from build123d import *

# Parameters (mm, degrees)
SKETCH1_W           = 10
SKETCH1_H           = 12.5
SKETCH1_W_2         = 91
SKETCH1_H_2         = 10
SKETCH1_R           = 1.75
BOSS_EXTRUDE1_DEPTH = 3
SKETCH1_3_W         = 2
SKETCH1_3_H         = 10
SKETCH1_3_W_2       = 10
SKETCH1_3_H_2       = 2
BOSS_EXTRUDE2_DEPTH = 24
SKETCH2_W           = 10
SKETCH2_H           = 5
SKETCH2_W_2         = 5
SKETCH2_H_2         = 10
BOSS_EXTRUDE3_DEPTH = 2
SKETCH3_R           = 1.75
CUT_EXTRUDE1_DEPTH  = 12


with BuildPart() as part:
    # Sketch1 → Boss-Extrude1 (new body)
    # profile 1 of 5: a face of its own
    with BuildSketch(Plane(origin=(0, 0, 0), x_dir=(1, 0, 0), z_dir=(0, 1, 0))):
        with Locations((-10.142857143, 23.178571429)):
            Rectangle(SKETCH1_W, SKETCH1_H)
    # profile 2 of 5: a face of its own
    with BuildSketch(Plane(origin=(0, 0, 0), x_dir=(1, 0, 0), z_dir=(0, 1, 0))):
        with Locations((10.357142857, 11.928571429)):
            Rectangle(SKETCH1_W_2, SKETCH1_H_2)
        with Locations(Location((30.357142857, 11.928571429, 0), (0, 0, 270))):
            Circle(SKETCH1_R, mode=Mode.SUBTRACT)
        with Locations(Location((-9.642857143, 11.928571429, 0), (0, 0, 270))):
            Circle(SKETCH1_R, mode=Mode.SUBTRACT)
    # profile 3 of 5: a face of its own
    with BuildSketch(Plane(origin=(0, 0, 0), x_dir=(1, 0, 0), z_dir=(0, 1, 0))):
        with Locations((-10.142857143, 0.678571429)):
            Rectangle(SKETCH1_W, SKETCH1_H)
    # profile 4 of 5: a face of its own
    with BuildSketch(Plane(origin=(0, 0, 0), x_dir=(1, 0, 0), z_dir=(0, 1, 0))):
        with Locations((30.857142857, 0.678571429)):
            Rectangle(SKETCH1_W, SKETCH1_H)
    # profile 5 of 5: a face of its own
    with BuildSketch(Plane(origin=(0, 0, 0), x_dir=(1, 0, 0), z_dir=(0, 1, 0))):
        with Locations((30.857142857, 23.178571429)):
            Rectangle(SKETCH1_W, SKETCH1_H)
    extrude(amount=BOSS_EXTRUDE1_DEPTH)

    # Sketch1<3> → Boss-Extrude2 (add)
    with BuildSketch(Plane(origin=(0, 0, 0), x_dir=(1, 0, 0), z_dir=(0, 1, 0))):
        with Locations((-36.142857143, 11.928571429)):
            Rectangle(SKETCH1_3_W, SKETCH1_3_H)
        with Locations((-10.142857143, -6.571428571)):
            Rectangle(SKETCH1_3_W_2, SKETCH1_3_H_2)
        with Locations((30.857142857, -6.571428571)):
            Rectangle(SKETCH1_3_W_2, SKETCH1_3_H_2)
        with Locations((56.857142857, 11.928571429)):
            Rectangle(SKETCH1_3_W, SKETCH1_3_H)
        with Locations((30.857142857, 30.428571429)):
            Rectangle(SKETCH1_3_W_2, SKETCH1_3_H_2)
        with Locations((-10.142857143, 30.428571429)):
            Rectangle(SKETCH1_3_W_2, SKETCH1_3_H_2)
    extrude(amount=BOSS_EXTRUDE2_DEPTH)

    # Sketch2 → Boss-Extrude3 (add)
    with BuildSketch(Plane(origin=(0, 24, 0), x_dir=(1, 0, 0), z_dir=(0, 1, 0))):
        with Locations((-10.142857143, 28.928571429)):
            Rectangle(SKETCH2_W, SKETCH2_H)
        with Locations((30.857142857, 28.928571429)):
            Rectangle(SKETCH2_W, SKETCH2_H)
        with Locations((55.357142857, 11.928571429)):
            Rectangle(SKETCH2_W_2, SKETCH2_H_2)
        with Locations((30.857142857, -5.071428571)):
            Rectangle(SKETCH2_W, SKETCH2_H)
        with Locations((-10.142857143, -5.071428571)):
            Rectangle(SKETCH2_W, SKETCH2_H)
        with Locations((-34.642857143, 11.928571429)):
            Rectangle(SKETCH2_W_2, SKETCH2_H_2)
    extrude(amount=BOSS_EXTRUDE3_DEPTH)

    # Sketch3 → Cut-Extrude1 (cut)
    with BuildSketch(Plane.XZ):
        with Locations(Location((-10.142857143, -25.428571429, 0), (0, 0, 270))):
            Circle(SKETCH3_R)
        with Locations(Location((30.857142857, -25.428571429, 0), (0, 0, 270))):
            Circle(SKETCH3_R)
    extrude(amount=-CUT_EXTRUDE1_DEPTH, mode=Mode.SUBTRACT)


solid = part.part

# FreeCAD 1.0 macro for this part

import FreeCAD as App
import Part
import Sketcher
Q = App.Units.Quantity

doc = App.newDocument("Part")
body = doc.addObject("PartDesign::Body", "Body")

# Sketch on XZ plane
sketch1 = doc.addObject("Sketcher::SketchObject", "Sketch")
body.addObject(sketch1)
sketch1.AttachmentSupport = (doc.XZ_Plane, [""])
sketch1.MapMode = "FlatFace"
sketch1.addGeometry([
    Part.LineSegment(App.Vector(-15.1, -29.4, 0), App.Vector(-15.1, -16.9, 0)),  # 0
    Part.LineSegment(App.Vector(-15.1, -16.9, 0), App.Vector(-35.1, -16.9, 0)),  # 1
    Part.LineSegment(App.Vector(-35.1, -16.9, 0), App.Vector(-35.1, -6.9, 0)),  # 2
    Part.LineSegment(App.Vector(-35.1, -6.9, 0), App.Vector(-15.1, -6.9, 0)),  # 3
    Part.LineSegment(App.Vector(-15.1, -6.9, 0), App.Vector(-15.1, 5.6, 0)),  # 4
    Part.LineSegment(App.Vector(-15.1, 5.6, 0), App.Vector(-5.1, 5.6, 0)),  # 5
    Part.LineSegment(App.Vector(-5.1, 5.6, 0), App.Vector(-5.1, -6.9, 0)),  # 6
    Part.LineSegment(App.Vector(-5.1, -6.9, 0), App.Vector(25.9, -6.9, 0)),  # 7
    Part.LineSegment(App.Vector(25.9, -6.9, 0), App.Vector(25.9, 5.6, 0)),  # 8
    Part.LineSegment(App.Vector(25.9, 5.6, 0), App.Vector(35.9, 5.6, 0)),  # 9
    Part.LineSegment(App.Vector(35.9, 5.6, 0), App.Vector(35.9, -6.9, 0)),  # 10
    Part.LineSegment(App.Vector(35.9, -6.9, 0), App.Vector(55.9, -6.9, 0)),  # 11
    Part.LineSegment(App.Vector(55.9, -6.9, 0), App.Vector(55.9, -16.9, 0)),  # 12
    Part.LineSegment(App.Vector(55.9, -16.9, 0), App.Vector(35.9, -16.9, 0)),  # 13
    Part.LineSegment(App.Vector(35.9, -16.9, 0), App.Vector(35.9, -29.4, 0)),  # 14
    Part.LineSegment(App.Vector(35.9, -29.4, 0), App.Vector(25.9, -29.4, 0)),  # 15
    Part.LineSegment(App.Vector(25.9, -29.4, 0), App.Vector(25.9, -16.9, 0)),  # 16
    Part.LineSegment(App.Vector(25.9, -16.9, 0), App.Vector(-5.1, -16.9, 0)),  # 17
    Part.LineSegment(App.Vector(-5.1, -16.9, 0), App.Vector(-5.1, -29.4, 0)),  # 18
    Part.LineSegment(App.Vector(-5.1, -29.4, 0), App.Vector(-15.1, -29.4, 0)),  # 19
    Part.Circle(App.Vector(30.4, -11.9, 0), App.Vector(0, 0, 1), 1.8),  # 20
    Part.Circle(App.Vector(-9.6, -11.9, 0), App.Vector(0, 0, 1), 1.8),  # 21
], False)
sketch1.addConstraint([
    Sketcher.Constraint("Coincident", 0, 2, 1, 1),
    Sketcher.Constraint("Coincident", 1, 2, 2, 1),
    Sketcher.Constraint("Coincident", 2, 2, 3, 1),
    Sketcher.Constraint("Coincident", 3, 2, 4, 1),
    Sketcher.Constraint("Coincident", 4, 2, 5, 1),
    Sketcher.Constraint("Coincident", 5, 2, 6, 1),
    Sketcher.Constraint("Coincident", 6, 2, 7, 1),
    Sketcher.Constraint("Coincident", 7, 2, 8, 1),
    Sketcher.Constraint("Coincident", 8, 2, 9, 1),
    Sketcher.Constraint("Coincident", 9, 2, 10, 1),
    Sketcher.Constraint("Coincident", 10, 2, 11, 1),
    Sketcher.Constraint("Coincident", 11, 2, 12, 1),
    Sketcher.Constraint("Coincident", 12, 2, 13, 1),
    Sketcher.Constraint("Coincident", 13, 2, 14, 1),
    Sketcher.Constraint("Coincident", 14, 2, 15, 1),
    Sketcher.Constraint("Coincident", 15, 2, 16, 1),
    Sketcher.Constraint("Coincident", 16, 2, 17, 1),
    Sketcher.Constraint("Coincident", 17, 2, 18, 1),
    Sketcher.Constraint("Coincident", 18, 2, 19, 1),
    Sketcher.Constraint("Coincident", 19, 2, 0, 1),
    Sketcher.Constraint("Vertical", 0),
    Sketcher.Constraint("Horizontal", 1),
    Sketcher.Constraint("Vertical", 2),
    Sketcher.Constraint("Horizontal", 3),
    Sketcher.Constraint("Vertical", 4),
    Sketcher.Constraint("Horizontal", 5),
    Sketcher.Constraint("Vertical", 6),
    Sketcher.Constraint("Horizontal", 7),
    Sketcher.Constraint("Vertical", 8),
    Sketcher.Constraint("Horizontal", 9),
    Sketcher.Constraint("Vertical", 10),
    Sketcher.Constraint("Horizontal", 11),
    Sketcher.Constraint("Vertical", 12),
    Sketcher.Constraint("Horizontal", 13),
    Sketcher.Constraint("Vertical", 14),
    Sketcher.Constraint("Horizontal", 15),
    Sketcher.Constraint("Vertical", 16),
    Sketcher.Constraint("Horizontal", 17),
    Sketcher.Constraint("Vertical", 18),
    Sketcher.Constraint("Horizontal", 19),
    Sketcher.Constraint("Equal", 20, 21),
    Sketcher.Constraint("Horizontal", 20, 3, 21, 3),
    Sketcher.Constraint("Horizontal", 3, 2, 6, 2),
    Sketcher.Constraint("Horizontal", 5, 2, 8, 2),
    Sketcher.Constraint("Horizontal", 7, 2, 10, 2),
    Sketcher.Constraint("Horizontal", 1, 2, 12, 2),
    Sketcher.Constraint("Horizontal", 13, 2, 16, 2),
    Sketcher.Constraint("Horizontal", 15, 2, 18, 2),
    Sketcher.Constraint("Vertical", 0, 2, 3, 2),
    Sketcher.Constraint("Vertical", 10, 2, 13, 2),
    Sketcher.Constraint("Vertical", 8, 2, 15, 2),
    Sketcher.Constraint("Vertical", 6, 2, 17, 2),
    Sketcher.Constraint("Equal", 5, 9),
    Sketcher.Constraint("Equal", 3, 11),
    Sketcher.Constraint("Equal", 19, 2),
    Sketcher.Constraint("Equal", 0, 4),
    Sketcher.Constraint("Diameter", 20, Q("3.5 mm")),
    Sketcher.Constraint("DistanceX", 1, 2, 1, 1, Q("20 mm")),
    Sketcher.Constraint("DistanceX", 5, 1, 5, 2, Q("10 mm")),
    Sketcher.Constraint("DistanceX", 7, 1, 7, 2, Q("31 mm")),
    Sketcher.Constraint("DistanceY", 0, 1, 0, 2, Q("12.5 mm")),
    Sketcher.Constraint("DistanceX", 21, 3, 20, 3, Q("40 mm")),
    Sketcher.Constraint("DistanceY", 0, 2, 21, 3, Q("5 mm")),
    Sketcher.Constraint("DistanceX", 0, 2, 21, 3, Q("5.5 mm")),
    Sketcher.Constraint("DistanceY", 20, 3, -1, 1, Q("11.928571 mm")),
    Sketcher.Constraint("DistanceX", -1, 1, 20, 3, Q("30.357143 mm")),
])
pad1 = doc.addObject("PartDesign::Pad", "Pad")
body.addObject(pad1)
pad1.Profile = sketch1
pad1.Length = 3
pad1.Reversed = True

# Sketch on XZ plane
sketch2 = doc.addObject("Sketcher::SketchObject", "Sketch001")
body.addObject(sketch2)
sketch2.AttachmentSupport = (doc.XZ_Plane, [""])
sketch2.MapMode = "FlatFace"
sketch2.addGeometry([
    Part.LineSegment(App.Vector(-37.1, -16.9, 0), App.Vector(-37.1, -6.9, 0)),  # 0
    Part.LineSegment(App.Vector(-37.1, -6.9, 0), App.Vector(-35.1, -6.9, 0)),  # 1
    Part.LineSegment(App.Vector(-35.1, -6.9, 0), App.Vector(-35.1, -16.9, 0)),  # 2
    Part.LineSegment(App.Vector(-35.1, -16.9, 0), App.Vector(-37.1, -16.9, 0)),  # 3
    Part.LineSegment(App.Vector(-15.1, 5.6, 0), App.Vector(-15.1, 7.6, 0)),  # 4
    Part.LineSegment(App.Vector(-15.1, 7.6, 0), App.Vector(-5.1, 7.6, 0)),  # 5
    Part.LineSegment(App.Vector(-5.1, 7.6, 0), App.Vector(-5.1, 5.6, 0)),  # 6
    Part.LineSegment(App.Vector(-5.1, 5.6, 0), App.Vector(-15.1, 5.6, 0)),  # 7
    Part.LineSegment(App.Vector(25.9, 5.6, 0), App.Vector(25.9, 7.6, 0)),  # 8
    Part.LineSegment(App.Vector(25.9, 7.6, 0), App.Vector(35.9, 7.6, 0)),  # 9
    Part.LineSegment(App.Vector(35.9, 7.6, 0), App.Vector(35.9, 5.6, 0)),  # 10
    Part.LineSegment(App.Vector(35.9, 5.6, 0), App.Vector(25.9, 5.6, 0)),  # 11
    Part.LineSegment(App.Vector(55.9, -16.9, 0), App.Vector(55.9, -6.9, 0)),  # 12
    Part.LineSegment(App.Vector(55.9, -6.9, 0), App.Vector(57.9, -6.9, 0)),  # 13
    Part.LineSegment(App.Vector(57.9, -6.9, 0), App.Vector(57.9, -16.9, 0)),  # 14
    Part.LineSegment(App.Vector(57.9, -16.9, 0), App.Vector(55.9, -16.9, 0)),  # 15
    Part.LineSegment(App.Vector(25.9, -31.4, 0), App.Vector(25.9, -29.4, 0)),  # 16
    Part.LineSegment(App.Vector(25.9, -29.4, 0), App.Vector(35.9, -29.4, 0)),  # 17
    Part.LineSegment(App.Vector(35.9, -29.4, 0), App.Vector(35.9, -31.4, 0)),  # 18
    Part.LineSegment(App.Vector(35.9, -31.4, 0), App.Vector(25.9, -31.4, 0)),  # 19
    Part.LineSegment(App.Vector(-15.1, -31.4, 0), App.Vector(-15.1, -29.4, 0)),  # 20
    Part.LineSegment(App.Vector(-15.1, -29.4, 0), App.Vector(-5.1, -29.4, 0)),  # 21
    Part.LineSegment(App.Vector(-5.1, -29.4, 0), App.Vector(-5.1, -31.4, 0)),  # 22
    Part.LineSegment(App.Vector(-5.1, -31.4, 0), App.Vector(-15.1, -31.4, 0)),  # 23
], False)
sketch2.addConstraint([
    Sketcher.Constraint("Coincident", 0, 2, 1, 1),
    Sketcher.Constraint("Coincident", 1, 2, 2, 1),
    Sketcher.Constraint("Coincident", 2, 2, 3, 1),
    Sketcher.Constraint("Coincident", 3, 2, 0, 1),
    Sketcher.Constraint("Coincident", 4, 2, 5, 1),
    Sketcher.Constraint("Coincident", 5, 2, 6, 1),
    Sketcher.Constraint("Coincident", 6, 2, 7, 1),
    Sketcher.Constraint("Coincident", 7, 2, 4, 1),
    Sketcher.Constraint("Coincident", 8, 2, 9, 1),
    Sketcher.Constraint("Coincident", 9, 2, 10, 1),
    Sketcher.Constraint("Coincident", 10, 2, 11, 1),
    Sketcher.Constraint("Coincident", 11, 2, 8, 1),
    Sketcher.Constraint("Coincident", 12, 2, 13, 1),
    Sketcher.Constraint("Coincident", 13, 2, 14, 1),
    Sketcher.Constraint("Coincident", 14, 2, 15, 1),
    Sketcher.Constraint("Coincident", 15, 2, 12, 1),
    Sketcher.Constraint("Coincident", 16, 2, 17, 1),
    Sketcher.Constraint("Coincident", 17, 2, 18, 1),
    Sketcher.Constraint("Coincident", 18, 2, 19, 1),
    Sketcher.Constraint("Coincident", 19, 2, 16, 1),
    Sketcher.Constraint("Coincident", 20, 2, 21, 1),
    Sketcher.Constraint("Coincident", 21, 2, 22, 1),
    Sketcher.Constraint("Coincident", 22, 2, 23, 1),
    Sketcher.Constraint("Coincident", 23, 2, 20, 1),
    Sketcher.Constraint("Vertical", 0),
    Sketcher.Constraint("Horizontal", 1),
    Sketcher.Constraint("Vertical", 2),
    Sketcher.Constraint("Horizontal", 3),
    Sketcher.Constraint("Vertical", 4),
    Sketcher.Constraint("Horizontal", 5),
    Sketcher.Constraint("Vertical", 6),
    Sketcher.Constraint("Horizontal", 7),
    Sketcher.Constraint("Vertical", 8),
    Sketcher.Constraint("Horizontal", 9),
    Sketcher.Constraint("Vertical", 10),
    Sketcher.Constraint("Horizontal", 11),
    Sketcher.Constraint("Vertical", 12),
    Sketcher.Constraint("Horizontal", 13),
    Sketcher.Constraint("Vertical", 14),
    Sketcher.Constraint("Horizontal", 15),
    Sketcher.Constraint("Vertical", 16),
    Sketcher.Constraint("Horizontal", 17),
    Sketcher.Constraint("Vertical", 18),
    Sketcher.Constraint("Horizontal", 19),
    Sketcher.Constraint("Vertical", 20),
    Sketcher.Constraint("Horizontal", 21),
    Sketcher.Constraint("Vertical", 22),
    Sketcher.Constraint("Horizontal", 23),
    Sketcher.Constraint("Horizontal", 5, 2, 8, 2),
    Sketcher.Constraint("Horizontal", 7, 2, 10, 2),
    Sketcher.Constraint("Horizontal", 1, 2, 12, 2),
    Sketcher.Constraint("Horizontal", 3, 2, 14, 2),
    Sketcher.Constraint("Horizontal", 17, 2, 20, 2),
    Sketcher.Constraint("Horizontal", 19, 2, 22, 2),
    Sketcher.Constraint("Vertical", 11, 2, 16, 2),
    Sketcher.Constraint("Vertical", 10, 2, 17, 2),
    Sketcher.Constraint("Vertical", 7, 2, 20, 2),
    Sketcher.Constraint("Vertical", 6, 2, 21, 2),
    Sketcher.Constraint("Equal", 7, 9),
    Sketcher.Constraint("Equal", 3, 13),
    Sketcher.Constraint("Equal", 23, 0),
    Sketcher.Constraint("Equal", 15, 4),
    Sketcher.Constraint("Equal", 10, 16),
    Sketcher.Constraint("DistanceX", 1, 1, 1, 2, Q("2 mm")),
    Sketcher.Constraint("DistanceX", 5, 1, 5, 2, Q("10 mm")),
    Sketcher.Constraint("DistanceX", 1, 2, 4, 2, Q("20 mm")),
    Sketcher.Constraint("DistanceX", 5, 2, 8, 2, Q("31 mm")),
    Sketcher.Constraint("DistanceX", 10, 2, 12, 2, Q("20 mm")),
    Sketcher.Constraint("DistanceY", 16, 2, 11, 2, Q("35 mm")),
    Sketcher.Constraint("DistanceY", 1, 2, 4, 2, Q("14.5 mm")),
    Sketcher.Constraint("DistanceY", 0, 2, -1, 1, Q("6.928571 mm")),
    Sketcher.Constraint("DistanceX", 0, 2, -1, 1, Q("37.142857 mm")),
])
pad2 = doc.addObject("PartDesign::Pad", "Pad001")
body.addObject(pad2)
pad2.Profile = sketch2
pad2.Length = 24
pad2.Reversed = True

# Sketch on XZ plane
sketch3 = doc.addObject("Sketcher::SketchObject", "Sketch002")
body.addObject(sketch3)
sketch3.AttachmentSupport = (doc.XZ_Plane, [""])
sketch3.MapMode = "FlatFace"
sketch3.AttachmentOffset = App.Placement(App.Vector(0, 0, -24), App.Rotation())
sketch3.addGeometry([
    Part.LineSegment(App.Vector(-15, -31, 0), App.Vector(-15, -26, 0)),  # 0
    Part.LineSegment(App.Vector(-15, -26, 0), App.Vector(-5, -26, 0)),  # 1
    Part.LineSegment(App.Vector(-5, -26, 0), App.Vector(-5, -31, 0)),  # 2
    Part.LineSegment(App.Vector(-5, -31, 0), App.Vector(-15, -31, 0)),  # 3
    Part.LineSegment(App.Vector(26, -31, 0), App.Vector(26, -26, 0)),  # 4
    Part.LineSegment(App.Vector(26, -26, 0), App.Vector(36, -26, 0)),  # 5
    Part.LineSegment(App.Vector(36, -26, 0), App.Vector(36, -31, 0)),  # 6
    Part.LineSegment(App.Vector(36, -31, 0), App.Vector(26, -31, 0)),  # 7
    Part.LineSegment(App.Vector(53, -17, 0), App.Vector(53, -7, 0)),  # 8
    Part.LineSegment(App.Vector(53, -7, 0), App.Vector(58, -7, 0)),  # 9
    Part.LineSegment(App.Vector(58, -7, 0), App.Vector(58, -17, 0)),  # 10
    Part.LineSegment(App.Vector(58, -17, 0), App.Vector(53, -17, 0)),  # 11
    Part.LineSegment(App.Vector(26, 3, 0), App.Vector(26, 8, 0)),  # 12
    Part.LineSegment(App.Vector(26, 8, 0), App.Vector(36, 8, 0)),  # 13
    Part.LineSegment(App.Vector(36, 8, 0), App.Vector(36, 3, 0)),  # 14
    Part.LineSegment(App.Vector(36, 3, 0), App.Vector(26, 3, 0)),  # 15
    Part.LineSegment(App.Vector(-15, 3, 0), App.Vector(-15, 8, 0)),  # 16
    Part.LineSegment(App.Vector(-15, 8, 0), App.Vector(-5, 8, 0)),  # 17
    Part.LineSegment(App.Vector(-5, 8, 0), App.Vector(-5, 3, 0)),  # 18
    Part.LineSegment(App.Vector(-5, 3, 0), App.Vector(-15, 3, 0)),  # 19
    Part.LineSegment(App.Vector(-37, -17, 0), App.Vector(-37, -7, 0)),  # 20
    Part.LineSegment(App.Vector(-37, -7, 0), App.Vector(-32, -7, 0)),  # 21
    Part.LineSegment(App.Vector(-32, -7, 0), App.Vector(-32, -17, 0)),  # 22
    Part.LineSegment(App.Vector(-32, -17, 0), App.Vector(-37, -17, 0)),  # 23
], False)
sketch3.addConstraint([
    Sketcher.Constraint("Coincident", 0, 2, 1, 1),
    Sketcher.Constraint("Coincident", 1, 2, 2, 1),
    Sketcher.Constraint("Coincident", 2, 2, 3, 1),
    Sketcher.Constraint("Coincident", 3, 2, 0, 1),
    Sketcher.Constraint("Coincident", 4, 2, 5, 1),
    Sketcher.Constraint("Coincident", 5, 2, 6, 1),
    Sketcher.Constraint("Coincident", 6, 2, 7, 1),
    Sketcher.Constraint("Coincident", 7, 2, 4, 1),
    Sketcher.Constraint("Coincident", 8, 2, 9, 1),
    Sketcher.Constraint("Coincident", 9, 2, 10, 1),
    Sketcher.Constraint("Coincident", 10, 2, 11, 1),
    Sketcher.Constraint("Coincident", 11, 2, 8, 1),
    Sketcher.Constraint("Coincident", 12, 2, 13, 1),
    Sketcher.Constraint("Coincident", 13, 2, 14, 1),
    Sketcher.Constraint("Coincident", 14, 2, 15, 1),
    Sketcher.Constraint("Coincident", 15, 2, 12, 1),
    Sketcher.Constraint("Coincident", 16, 2, 17, 1),
    Sketcher.Constraint("Coincident", 17, 2, 18, 1),
    Sketcher.Constraint("Coincident", 18, 2, 19, 1),
    Sketcher.Constraint("Coincident", 19, 2, 16, 1),
    Sketcher.Constraint("Coincident", 20, 2, 21, 1),
    Sketcher.Constraint("Coincident", 21, 2, 22, 1),
    Sketcher.Constraint("Coincident", 22, 2, 23, 1),
    Sketcher.Constraint("Coincident", 23, 2, 20, 1),
    Sketcher.Constraint("Vertical", 0),
    Sketcher.Constraint("Horizontal", 1),
    Sketcher.Constraint("Vertical", 2),
    Sketcher.Constraint("Horizontal", 3),
    Sketcher.Constraint("Vertical", 4),
    Sketcher.Constraint("Horizontal", 5),
    Sketcher.Constraint("Vertical", 6),
    Sketcher.Constraint("Horizontal", 7),
    Sketcher.Constraint("Vertical", 8),
    Sketcher.Constraint("Horizontal", 9),
    Sketcher.Constraint("Vertical", 10),
    Sketcher.Constraint("Horizontal", 11),
    Sketcher.Constraint("Vertical", 12),
    Sketcher.Constraint("Horizontal", 13),
    Sketcher.Constraint("Vertical", 14),
    Sketcher.Constraint("Horizontal", 15),
    Sketcher.Constraint("Vertical", 16),
    Sketcher.Constraint("Horizontal", 17),
    Sketcher.Constraint("Vertical", 18),
    Sketcher.Constraint("Horizontal", 19),
    Sketcher.Constraint("Vertical", 20),
    Sketcher.Constraint("Horizontal", 21),
    Sketcher.Constraint("Vertical", 22),
    Sketcher.Constraint("Horizontal", 23),
    Sketcher.Constraint("Horizontal", 1, 2, 4, 2),
    Sketcher.Constraint("Horizontal", 3, 2, 6, 2),
    Sketcher.Constraint("Horizontal", 13, 2, 16, 2),
    Sketcher.Constraint("Horizontal", 15, 2, 18, 2),
    Sketcher.Constraint("Horizontal", 9, 2, 20, 2),
    Sketcher.Constraint("Horizontal", 11, 2, 22, 2),
    Sketcher.Constraint("Vertical", 7, 2, 12, 2),
    Sketcher.Constraint("Vertical", 6, 2, 13, 2),
    Sketcher.Constraint("Vertical", 3, 2, 16, 2),
    Sketcher.Constraint("Vertical", 2, 2, 17, 2),
    Sketcher.Constraint("Equal", 3, 5),
    Sketcher.Constraint("Equal", 11, 21),
    Sketcher.Constraint("Equal", 23, 0),
    Sketcher.Constraint("Equal", 19, 8),
    Sketcher.Constraint("Equal", 6, 12),
    Sketcher.Constraint("DistanceX", 1, 1, 1, 2, Q("10 mm")),
    Sketcher.Constraint("DistanceX", 9, 1, 9, 2, Q("5 mm")),
    Sketcher.Constraint("DistanceX", 1, 2, 4, 2, Q("31 mm")),
    Sketcher.Constraint("DistanceX", 5, 2, 8, 2, Q("17 mm")),
    Sketcher.Constraint("DistanceY", 4, 2, 12, 2, Q("34 mm")),
    Sketcher.Constraint("DistanceX", 20, 2, 19, 2, Q("22 mm")),
    Sketcher.Constraint("DistanceY", 5, 2, 8, 2, Q("19.5 mm")),
    Sketcher.Constraint("DistanceY", 0, 2, -1, 1, Q("26.428571 mm")),
    Sketcher.Constraint("DistanceX", 0, 2, -1, 1, Q("15.142857 mm")),
])
pad3 = doc.addObject("PartDesign::Pad", "Pad002")
body.addObject(pad3)
pad3.Profile = sketch3
pad3.Length = 2
pad3.Reversed = True

# Sketch on XZ plane
sketch4 = doc.addObject("Sketcher::SketchObject", "Sketch003")
body.addObject(sketch4)
sketch4.AttachmentSupport = (doc.XZ_Plane, [""])
sketch4.MapMode = "FlatFace"
sketch4.addGeometry([
    Part.Circle(App.Vector(-10.1, -25.4, 0), App.Vector(0, 0, 1), 1.8),
    Part.Circle(App.Vector(30.9, -25.4, 0), App.Vector(0, 0, 1), 1.8),
], False)
sketch4.addConstraint([
    Sketcher.Constraint("Equal", 0, 1),
    Sketcher.Constraint("Horizontal", 0, 3, 1, 3),
    Sketcher.Constraint("Diameter", 0, Q("3.5 mm")),
    Sketcher.Constraint("DistanceX", 0, 3, 1, 3, Q("41 mm")),
    Sketcher.Constraint("DistanceY", 0, 3, -1, 1, Q("25.428571 mm")),
    Sketcher.Constraint("DistanceX", 0, 3, -1, 1, Q("10.142857 mm")),
])
pocket1 = doc.addObject("PartDesign::Pocket", "Pocket")
body.addObject(pocket1)
pocket1.Profile = sketch4
pocket1.Length = 12

doc.recompute()
